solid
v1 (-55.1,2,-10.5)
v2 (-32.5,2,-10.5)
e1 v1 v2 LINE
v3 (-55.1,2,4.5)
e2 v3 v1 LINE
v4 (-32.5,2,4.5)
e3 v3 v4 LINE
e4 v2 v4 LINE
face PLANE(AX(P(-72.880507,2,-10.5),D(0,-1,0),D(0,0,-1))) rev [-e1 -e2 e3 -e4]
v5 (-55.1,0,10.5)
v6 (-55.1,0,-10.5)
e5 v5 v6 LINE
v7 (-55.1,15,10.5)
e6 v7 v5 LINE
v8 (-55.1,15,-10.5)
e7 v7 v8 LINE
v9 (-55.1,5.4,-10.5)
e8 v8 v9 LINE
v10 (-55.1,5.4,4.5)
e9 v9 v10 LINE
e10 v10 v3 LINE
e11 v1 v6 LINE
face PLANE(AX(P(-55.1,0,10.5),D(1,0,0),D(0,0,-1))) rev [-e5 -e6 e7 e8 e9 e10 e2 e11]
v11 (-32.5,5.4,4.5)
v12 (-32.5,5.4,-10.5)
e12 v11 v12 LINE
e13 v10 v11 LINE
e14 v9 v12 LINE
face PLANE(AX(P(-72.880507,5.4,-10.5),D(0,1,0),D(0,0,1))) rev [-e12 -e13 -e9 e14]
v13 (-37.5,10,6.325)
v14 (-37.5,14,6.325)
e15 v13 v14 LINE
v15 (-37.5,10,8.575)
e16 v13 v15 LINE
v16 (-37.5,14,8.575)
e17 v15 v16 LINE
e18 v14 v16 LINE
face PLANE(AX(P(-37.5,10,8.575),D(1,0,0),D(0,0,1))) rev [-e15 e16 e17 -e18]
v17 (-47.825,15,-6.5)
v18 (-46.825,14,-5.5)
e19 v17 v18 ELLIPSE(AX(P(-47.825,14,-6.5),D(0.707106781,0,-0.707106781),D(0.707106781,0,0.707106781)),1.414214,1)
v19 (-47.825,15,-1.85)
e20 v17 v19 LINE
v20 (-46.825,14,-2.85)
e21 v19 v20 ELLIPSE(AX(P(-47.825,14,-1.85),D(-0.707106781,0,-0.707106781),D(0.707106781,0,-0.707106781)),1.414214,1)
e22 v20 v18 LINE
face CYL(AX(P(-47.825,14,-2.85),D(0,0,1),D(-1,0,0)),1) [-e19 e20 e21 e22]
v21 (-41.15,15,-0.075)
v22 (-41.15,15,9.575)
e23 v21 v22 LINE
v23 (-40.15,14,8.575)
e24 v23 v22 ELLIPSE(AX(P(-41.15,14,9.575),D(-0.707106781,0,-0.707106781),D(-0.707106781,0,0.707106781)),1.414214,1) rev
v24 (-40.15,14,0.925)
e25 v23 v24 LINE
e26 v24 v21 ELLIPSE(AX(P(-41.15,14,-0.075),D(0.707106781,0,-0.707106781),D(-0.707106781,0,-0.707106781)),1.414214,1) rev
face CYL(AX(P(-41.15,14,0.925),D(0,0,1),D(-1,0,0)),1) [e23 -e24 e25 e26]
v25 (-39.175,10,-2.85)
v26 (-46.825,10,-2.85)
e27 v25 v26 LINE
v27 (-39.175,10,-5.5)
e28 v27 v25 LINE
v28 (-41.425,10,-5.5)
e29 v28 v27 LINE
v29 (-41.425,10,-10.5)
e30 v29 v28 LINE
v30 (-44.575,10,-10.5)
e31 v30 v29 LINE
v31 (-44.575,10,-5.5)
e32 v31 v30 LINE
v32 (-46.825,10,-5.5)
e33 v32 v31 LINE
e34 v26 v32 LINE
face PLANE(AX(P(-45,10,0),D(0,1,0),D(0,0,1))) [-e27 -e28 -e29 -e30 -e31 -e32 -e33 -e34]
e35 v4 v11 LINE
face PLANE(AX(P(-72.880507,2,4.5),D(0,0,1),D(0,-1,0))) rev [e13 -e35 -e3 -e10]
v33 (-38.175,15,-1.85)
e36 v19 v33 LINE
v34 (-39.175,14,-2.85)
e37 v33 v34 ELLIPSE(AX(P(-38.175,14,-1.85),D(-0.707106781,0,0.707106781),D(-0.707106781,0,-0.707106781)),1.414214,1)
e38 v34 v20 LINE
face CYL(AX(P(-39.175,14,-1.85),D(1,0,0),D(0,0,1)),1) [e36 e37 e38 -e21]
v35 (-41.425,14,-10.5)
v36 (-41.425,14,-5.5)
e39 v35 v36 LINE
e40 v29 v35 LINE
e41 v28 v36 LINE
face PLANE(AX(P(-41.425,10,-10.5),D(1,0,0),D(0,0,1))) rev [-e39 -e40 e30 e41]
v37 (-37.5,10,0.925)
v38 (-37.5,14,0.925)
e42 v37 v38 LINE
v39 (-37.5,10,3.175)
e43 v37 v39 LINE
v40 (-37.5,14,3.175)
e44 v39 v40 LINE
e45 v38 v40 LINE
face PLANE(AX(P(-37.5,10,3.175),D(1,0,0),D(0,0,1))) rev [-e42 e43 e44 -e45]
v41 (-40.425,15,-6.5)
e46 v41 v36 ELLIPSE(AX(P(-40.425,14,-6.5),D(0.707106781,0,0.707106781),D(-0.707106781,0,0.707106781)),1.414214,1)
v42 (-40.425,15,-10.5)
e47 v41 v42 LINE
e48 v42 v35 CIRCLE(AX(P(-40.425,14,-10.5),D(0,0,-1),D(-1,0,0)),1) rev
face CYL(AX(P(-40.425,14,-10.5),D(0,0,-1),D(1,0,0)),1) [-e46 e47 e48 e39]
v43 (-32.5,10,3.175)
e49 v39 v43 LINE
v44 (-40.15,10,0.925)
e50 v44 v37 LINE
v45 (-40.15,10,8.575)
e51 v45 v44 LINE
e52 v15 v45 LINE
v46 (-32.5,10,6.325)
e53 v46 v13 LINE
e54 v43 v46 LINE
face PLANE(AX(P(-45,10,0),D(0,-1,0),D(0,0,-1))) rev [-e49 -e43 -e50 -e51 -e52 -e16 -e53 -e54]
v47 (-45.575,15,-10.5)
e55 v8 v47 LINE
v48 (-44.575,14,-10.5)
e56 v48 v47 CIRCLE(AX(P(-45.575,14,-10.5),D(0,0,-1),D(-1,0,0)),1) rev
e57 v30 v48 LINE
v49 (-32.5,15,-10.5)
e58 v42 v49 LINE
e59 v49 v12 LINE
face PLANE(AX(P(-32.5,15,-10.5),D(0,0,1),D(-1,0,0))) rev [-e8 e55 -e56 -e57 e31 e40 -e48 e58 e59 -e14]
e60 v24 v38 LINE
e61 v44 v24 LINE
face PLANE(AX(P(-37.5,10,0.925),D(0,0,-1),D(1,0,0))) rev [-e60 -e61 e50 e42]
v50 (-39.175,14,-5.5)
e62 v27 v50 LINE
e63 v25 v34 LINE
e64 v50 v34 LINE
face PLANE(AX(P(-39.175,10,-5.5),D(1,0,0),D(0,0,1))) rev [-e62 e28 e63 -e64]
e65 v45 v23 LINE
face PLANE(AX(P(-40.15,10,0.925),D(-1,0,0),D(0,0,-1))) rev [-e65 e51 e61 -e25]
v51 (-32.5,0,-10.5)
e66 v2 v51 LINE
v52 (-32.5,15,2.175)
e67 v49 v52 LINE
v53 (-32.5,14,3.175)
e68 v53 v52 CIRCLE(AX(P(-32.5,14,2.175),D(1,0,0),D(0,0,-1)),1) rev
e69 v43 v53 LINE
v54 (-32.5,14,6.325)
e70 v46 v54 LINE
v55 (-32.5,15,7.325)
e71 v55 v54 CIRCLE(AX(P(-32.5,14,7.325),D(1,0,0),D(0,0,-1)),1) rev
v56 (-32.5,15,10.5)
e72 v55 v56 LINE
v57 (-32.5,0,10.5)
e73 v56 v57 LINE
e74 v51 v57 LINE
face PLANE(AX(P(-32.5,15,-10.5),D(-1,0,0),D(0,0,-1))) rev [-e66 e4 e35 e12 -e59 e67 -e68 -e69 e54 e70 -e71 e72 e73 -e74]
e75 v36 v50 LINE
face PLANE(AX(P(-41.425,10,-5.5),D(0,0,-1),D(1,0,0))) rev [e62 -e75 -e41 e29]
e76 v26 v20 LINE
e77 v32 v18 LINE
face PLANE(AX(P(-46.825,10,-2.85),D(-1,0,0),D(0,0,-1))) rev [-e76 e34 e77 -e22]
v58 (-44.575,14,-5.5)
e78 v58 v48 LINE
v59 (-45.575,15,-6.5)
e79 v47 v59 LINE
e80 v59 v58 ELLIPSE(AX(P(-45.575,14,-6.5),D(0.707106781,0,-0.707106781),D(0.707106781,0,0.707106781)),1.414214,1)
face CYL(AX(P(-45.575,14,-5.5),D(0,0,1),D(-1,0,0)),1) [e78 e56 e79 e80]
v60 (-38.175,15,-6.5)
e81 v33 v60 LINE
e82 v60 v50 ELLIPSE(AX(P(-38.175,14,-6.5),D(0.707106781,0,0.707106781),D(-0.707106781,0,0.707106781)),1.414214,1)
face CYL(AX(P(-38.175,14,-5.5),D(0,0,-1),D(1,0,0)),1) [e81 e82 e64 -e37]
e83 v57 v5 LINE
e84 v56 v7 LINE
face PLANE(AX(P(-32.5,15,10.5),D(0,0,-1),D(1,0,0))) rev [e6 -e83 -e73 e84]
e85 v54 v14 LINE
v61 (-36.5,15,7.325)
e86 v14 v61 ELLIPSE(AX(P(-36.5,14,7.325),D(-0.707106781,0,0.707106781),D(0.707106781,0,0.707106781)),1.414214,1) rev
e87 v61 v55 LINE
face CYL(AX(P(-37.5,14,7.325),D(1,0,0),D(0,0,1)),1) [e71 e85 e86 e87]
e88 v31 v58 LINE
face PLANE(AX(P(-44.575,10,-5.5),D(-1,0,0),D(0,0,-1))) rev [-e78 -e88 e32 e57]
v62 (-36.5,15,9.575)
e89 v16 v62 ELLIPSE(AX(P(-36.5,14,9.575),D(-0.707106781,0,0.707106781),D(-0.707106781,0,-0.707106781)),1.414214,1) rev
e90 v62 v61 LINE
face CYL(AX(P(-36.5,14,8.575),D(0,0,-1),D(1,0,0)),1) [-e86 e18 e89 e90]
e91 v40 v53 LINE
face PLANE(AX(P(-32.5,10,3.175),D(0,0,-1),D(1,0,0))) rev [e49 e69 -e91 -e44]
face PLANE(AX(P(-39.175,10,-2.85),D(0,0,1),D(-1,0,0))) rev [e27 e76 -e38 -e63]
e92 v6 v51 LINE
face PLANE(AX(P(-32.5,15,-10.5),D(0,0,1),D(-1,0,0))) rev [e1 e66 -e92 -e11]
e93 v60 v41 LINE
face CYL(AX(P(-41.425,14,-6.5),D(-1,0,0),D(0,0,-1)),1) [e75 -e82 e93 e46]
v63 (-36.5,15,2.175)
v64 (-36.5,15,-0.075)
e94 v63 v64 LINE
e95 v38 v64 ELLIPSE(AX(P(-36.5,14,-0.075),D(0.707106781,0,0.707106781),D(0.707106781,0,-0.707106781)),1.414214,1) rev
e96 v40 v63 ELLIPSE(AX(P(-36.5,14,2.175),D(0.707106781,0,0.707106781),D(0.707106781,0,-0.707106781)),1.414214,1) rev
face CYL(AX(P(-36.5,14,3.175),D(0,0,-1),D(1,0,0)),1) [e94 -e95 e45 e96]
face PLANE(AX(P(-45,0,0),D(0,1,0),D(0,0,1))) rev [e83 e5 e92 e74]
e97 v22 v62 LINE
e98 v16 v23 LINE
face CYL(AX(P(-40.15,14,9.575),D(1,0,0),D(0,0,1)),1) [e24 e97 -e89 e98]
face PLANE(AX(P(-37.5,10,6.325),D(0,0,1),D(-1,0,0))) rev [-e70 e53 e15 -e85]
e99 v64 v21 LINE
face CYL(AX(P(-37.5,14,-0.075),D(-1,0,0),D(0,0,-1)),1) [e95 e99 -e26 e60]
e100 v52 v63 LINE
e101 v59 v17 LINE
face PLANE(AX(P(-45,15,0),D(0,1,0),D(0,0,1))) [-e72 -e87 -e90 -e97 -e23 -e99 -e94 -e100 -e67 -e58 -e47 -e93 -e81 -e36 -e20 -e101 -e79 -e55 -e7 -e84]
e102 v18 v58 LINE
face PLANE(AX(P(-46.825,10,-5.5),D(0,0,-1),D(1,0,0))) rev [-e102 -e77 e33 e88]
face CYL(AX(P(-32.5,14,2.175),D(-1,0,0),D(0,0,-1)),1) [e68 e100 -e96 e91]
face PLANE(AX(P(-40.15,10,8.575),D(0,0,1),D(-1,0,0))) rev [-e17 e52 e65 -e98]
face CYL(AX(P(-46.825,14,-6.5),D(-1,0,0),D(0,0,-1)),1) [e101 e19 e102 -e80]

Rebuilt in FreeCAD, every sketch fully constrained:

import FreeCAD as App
import Part
import Sketcher
from FreeCAD import Vector


def edges_at(feature, points):
    """Names of the edges that pass closest to the given points."""
    edges = feature.Shape.Edges
    near = lambda p: min(range(len(edges)), key=lambda i: edges[i].distToShape(Part.Vertex(*p))[0])
    return sorted({f"Edge{near(p) + 1}" for p in points})

doc = App.newDocument("Part")
body = doc.addObject("PartDesign::Body", "Body")

# Sketch on XZ plane
sketch1 = body.newObject("Sketcher::SketchObject", "Sketch")
sketch1.AttachmentSupport = (doc.getObject("XZ_Plane"), [""])
sketch1.MapMode = "FlatFace"
sketch1.addGeometry([
    Part.LineSegment(Vector(-12, -10, 0), Vector(-12, 10, 0)),
    Part.LineSegment(Vector(-12, 10, 0), Vector(12, 10, 0)),
    Part.LineSegment(Vector(12, 10, 0), Vector(12, -10, 0)),
    Part.LineSegment(Vector(12, -10, 0), Vector(-12, -10, 0)),
], False)
sketch1.addConstraint([
    Sketcher.Constraint("Coincident", 0, 2, 1, 1),
    Sketcher.Constraint("Coincident", 1, 2, 2, 1),
    Sketcher.Constraint("Coincident", 2, 2, 3, 1),
    Sketcher.Constraint("Coincident", 3, 2, 0, 1),
    Sketcher.Constraint("Vertical", 0),
    Sketcher.Constraint("Horizontal", 1),
    Sketcher.Constraint("Vertical", 2),
    Sketcher.Constraint("Horizontal", 3),
    Sketcher.Constraint("Symmetric", 0, 2, 2, 2, -1, 1),
    Sketcher.Constraint("DistanceX", 1, 1, 1, 2, 25.0),
    Sketcher.Constraint("DistanceY", 0, 1, 0, 2, 21.0),
])
pad1 = body.newObject("PartDesign::Pad", "Pad")
pad1.Profile = sketch1
pad1.Length = 15
pad1.Reversed = True

# Sketch on YZ plane
sketch2 = body.newObject("Sketcher::SketchObject", "Sketch001")
sketch2.AttachmentSupport = (doc.getObject("YZ_Plane"), [""])
sketch2.MapMode = "FlatFace"
sketch2.AttachmentOffset = App.Placement(Vector(0, 0, -12.5), App.Rotation())
sketch2.addGeometry([
    Part.LineSegment(Vector(5.4, -10.5, 0), Vector(2, -10.5, 0)),
    Part.LineSegment(Vector(2, -10.5, 0), Vector(2, 4.5, 0)),
    Part.LineSegment(Vector(2, 4.5, 0), Vector(5.4, 4.5, 0)),
    Part.LineSegment(Vector(5.4, 4.5, 0), Vector(5.4, -10.5, 0)),
], False)
sketch2.addConstraint([
    Sketcher.Constraint("Coincident", 0, 2, 1, 1),
    Sketcher.Constraint("Coincident", 1, 2, 2, 1),
    Sketcher.Constraint("Coincident", 2, 2, 3, 1),
    Sketcher.Constraint("Coincident", 3, 2, 0, 1),
    Sketcher.Constraint("Horizontal", 0),
    Sketcher.Constraint("Vertical", 1),
    Sketcher.Constraint("Horizontal", 2),
    Sketcher.Constraint("Vertical", 3),
    Sketcher.Constraint("DistanceY", 1, 1, 1, 2, 15.0),
    Sketcher.Constraint("DistanceX", 0, 2, 0, 1, 3.4),
    Sketcher.Constraint("DistanceX", -1, 1, 0, 2, 2.0),
    Sketcher.Constraint("DistanceY", 0, 2, -1, 1, 10.5),
])
pocket1 = body.newObject("PartDesign::Pocket", "Pocket")
pocket1.Profile = sketch2
pocket1.Length = 22.6
pocket1.Reversed = True

# Sketch on XZ plane
sketch3 = body.newObject("Sketcher::SketchObject", "Sketch002")
sketch3.AttachmentSupport = (doc.getObject("XZ_Plane"), [""])
sketch3.MapMode = "FlatFace"
sketch3.AttachmentOffset = App.Placement(Vector(0, 0, -15), App.Rotation())
sketch3.addGeometry([
    Part.LineSegment(Vector(-4.8, 8.6, 0), Vector(-4.8, 0.9, 0)),  # 0
    Part.LineSegment(Vector(-4.8, 0.9, 0), Vector(-7.5, 0.9, 0)),  # 1
    Part.LineSegment(Vector(-7.5, 0.9, 0), Vector(-7.5, 3.2, 0)),  # 2
    Part.LineSegment(Vector(-7.5, 3.2, 0), Vector(-12.5, 3.2, 0)),  # 3
    Part.LineSegment(Vector(-12.5, 3.2, 0), Vector(-12.5, 6.3, 0)),  # 4
    Part.LineSegment(Vector(-12.5, 6.3, 0), Vector(-7.5, 6.3, 0)),  # 5
    Part.LineSegment(Vector(-7.5, 6.3, 0), Vector(-7.5, 8.6, 0)),  # 6
    Part.LineSegment(Vector(-7.5, 8.6, 0), Vector(-4.8, 8.6, 0)),  # 7
    Part.LineSegment(Vector(-3.6, -10.5, 0), Vector(-3.6, -5.5, 0)),  # 8
    Part.LineSegment(Vector(-3.6, -5.5, 0), Vector(-5.8, -5.5, 0)),  # 9
    Part.LineSegment(Vector(-5.8, -5.5, 0), Vector(-5.8, -2.9, 0)),  # 10
    Part.LineSegment(Vector(-5.8, -2.9, 0), Vector(1.8, -2.9, 0)),  # 11
    Part.LineSegment(Vector(1.8, -2.9, 0), Vector(1.8, -5.5, 0)),  # 12
    Part.LineSegment(Vector(1.8, -5.5, 0), Vector(-0.4, -5.5, 0)),  # 13
    Part.LineSegment(Vector(-0.4, -5.5, 0), Vector(-0.4, -10.5, 0)),  # 14
    Part.LineSegment(Vector(-0.4, -10.5, 0), Vector(-3.6, -10.5, 0)),  # 15
], False)
sketch3.addConstraint([
    Sketcher.Constraint("Coincident", 0, 2, 1, 1),
    Sketcher.Constraint("Coincident", 1, 2, 2, 1),
    Sketcher.Constraint("Coincident", 2, 2, 3, 1),
    Sketcher.Constraint("Coincident", 3, 2, 4, 1),
    Sketcher.Constraint("Coincident", 4, 2, 5, 1),
    Sketcher.Constraint("Coincident", 5, 2, 6, 1),
    Sketcher.Constraint("Coincident", 6, 2, 7, 1),
    Sketcher.Constraint("Coincident", 7, 2, 0, 1),
    Sketcher.Constraint("Coincident", 8, 2, 9, 1),
    Sketcher.Constraint("Coincident", 9, 2, 10, 1),
    Sketcher.Constraint("Coincident", 10, 2, 11, 1),
    Sketcher.Constraint("Coincident", 11, 2, 12, 1),
    Sketcher.Constraint("Coincident", 12, 2, 13, 1),
    Sketcher.Constraint("Coincident", 13, 2, 14, 1),
    Sketcher.Constraint("Coincident", 14, 2, 15, 1),
    Sketcher.Constraint("Coincident", 15, 2, 8, 1),
    Sketcher.Constraint("Vertical", 0),
    Sketcher.Constraint("Horizontal", 1),
    Sketcher.Constraint("Vertical", 2),
    Sketcher.Constraint("Horizontal", 3),
    Sketcher.Constraint("Vertical", 4),
    Sketcher.Constraint("Horizontal", 5),
    Sketcher.Constraint("Vertical", 6),
    Sketcher.Constraint("Horizontal", 7),
    Sketcher.Constraint("Vertical", 8),
    Sketcher.Constraint("Horizontal", 9),
    Sketcher.Constraint("Vertical", 10),
    Sketcher.Constraint("Horizontal", 11),
    Sketcher.Constraint("Vertical", 12),
    Sketcher.Constraint("Horizontal", 13),
    Sketcher.Constraint("Vertical", 14),
    Sketcher.Constraint("Horizontal", 15),
    Sketcher.Constraint("Horizontal", 9, 2, 12, 2),
    Sketcher.Constraint("Vertical", 2, 2, 5, 2),
    Sketcher.Constraint("Equal", 9, 13),
    Sketcher.Constraint("Equal", 11, 0),
    Sketcher.Constraint("Equal", 13, 2),
    Sketcher.Constraint("Equal", 15, 4),
    Sketcher.Constraint("Equal", 5, 8),
    Sketcher.Constraint("Equal", 7, 10),
    Sketcher.Constraint("DistanceX", 3, 2, 3, 1, 5.0),
    Sketcher.Constraint("DistanceX", 1, 2, 1, 1, 2.65),
    Sketcher.Constraint("DistanceX", 9, 2, 9, 1, 2.25),
    Sketcher.Constraint("DistanceX", 11, 1, 11, 2, 7.65),
    Sketcher.Constraint("DistanceX", 1, 2, -1, 1, 7.5),
    Sketcher.Constraint("DistanceY", 8, 2, -1, 1, 5.5),
    Sketcher.Constraint("DistanceY", -1, 1, 0, 2, 0.925),
    Sketcher.Constraint("DistanceX", 8, 2, -1, 1, 3.575),
])
pocket2 = body.newObject("PartDesign::Pocket", "Pocket001")
pocket2.Profile = sketch3
pocket2.Length = 5
pocket2.Reversed = True
doc.recompute()

fillet = body.newObject("PartDesign::Fillet", "Fillet")
fillet.Base = (pocket2, edges_at(pocket2, [
    (-6.175, 15, 0.925),
    (-7.5, 15, 2.05),
    (-10, 15, 3.175),
    (-10, 15, 6.325),
    (-7.5, 15, 7.45),
    (-6.175, 15, 8.575),
    (-4.85, 15, 4.75),
    (-3.575, 15, -8),
    (-4.7, 15, -5.5),
    (-5.825, 15, -4.175),
    (-2, 15, -2.85),
    (1.825, 15, -4.175),
    (0.7, 15, -5.5),
    (-0.425, 15, -8),
]))
fillet.Radius = 1
body2 = doc.addObject("PartDesign::Body", "Body001")
doc.recompute()

mirroring = doc.addObject("Part::Mirroring", "Mirroring")
mirroring.Source = body
mirroring.Base = Vector(-22.5, 0, 0)
mirroring.Normal = Vector(-1, 0, 0)
body2.BaseFeature = mirroring
doc.recompute()

# Sketch on XY plane
sketch4 = body2.newObject("Sketcher::SketchObject", "Sketch003")
sketch4.AttachmentSupport = (doc.getObject("XY_Plane001"), [""])
sketch4.MapMode = "FlatFace"
sketch4.AttachmentOffset = App.Placement(Vector(0, 0, -10.5), App.Rotation())
sketch4.addGeometry([
    Part.LineSegment(Vector(-55.1, 15, 0), Vector(-55.1, 0, 0)),
    Part.LineSegment(Vector(-55.1, 0, 0), Vector(-57.5, 0, 0)),
    Part.LineSegment(Vector(-57.5, 0, 0), Vector(-57.5, 15, 0)),
    Part.LineSegment(Vector(-57.5, 15, 0), Vector(-55.1, 15, 0)),
], False)
sketch4.addConstraint([
    Sketcher.Constraint("Coincident", 0, 2, 1, 1),
    Sketcher.Constraint("Coincident", 1, 2, 2, 1),
    Sketcher.Constraint("Coincident", 2, 2, 3, 1),
    Sketcher.Constraint("Coincident", 3, 2, 0, 1),
    Sketcher.Constraint("Vertical", 0),
    Sketcher.Constraint("Horizontal", 1),
    Sketcher.Constraint("Vertical", 2),
    Sketcher.Constraint("Horizontal", 3),
    Sketcher.Constraint("PointOnObject", 0, 2, -1),
    Sketcher.Constraint("DistanceY", 0, 2, 0, 1, 15.0),
    Sketcher.Constraint("DistanceX", 1, 2, 1, 1, 2.4),
    Sketcher.Constraint("DistanceX", 0, 2, -1, 1, 55.1),
])
pocket3 = body2.newObject("PartDesign::Pocket", "Pocket002")
pocket3.Profile = sketch4
pocket3.Type = "ThroughAll"
pocket3.Reversed = True
body.Visibility = False
mirroring.Visibility = False

doc.recompute()
